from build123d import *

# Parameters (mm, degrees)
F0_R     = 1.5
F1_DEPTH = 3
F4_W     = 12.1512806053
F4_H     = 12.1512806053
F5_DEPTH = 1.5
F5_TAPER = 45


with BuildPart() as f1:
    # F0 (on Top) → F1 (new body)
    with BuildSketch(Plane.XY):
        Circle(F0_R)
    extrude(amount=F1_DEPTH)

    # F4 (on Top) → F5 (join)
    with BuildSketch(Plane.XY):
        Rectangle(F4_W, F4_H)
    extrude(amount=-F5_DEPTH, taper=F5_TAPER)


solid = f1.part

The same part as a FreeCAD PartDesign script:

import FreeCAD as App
import Part
import Sketcher
from FreeCAD import Vector

doc = App.newDocument("Part")
body = doc.addObject("PartDesign::Body", "Body")

sketch1 = body.newObject("Sketcher::SketchObject", "Sketch")
sketch1.AttachmentSupport = (doc.getObject("XY_Plane"), [""])
sketch1.MapMode = "FlatFace"
sketch1.addGeometry(Part.Circle(Vector(0, 0, 0), Vector(0, 0, 1), 1.5), False)
sketch1.addConstraint(Sketcher.Constraint("Coincident", 0, 3, -1, 1))
sketch1.addConstraint(Sketcher.Constraint("Diameter", 0, 3.0))
pad1 = body.newObject("PartDesign::Pad", "Pad")
pad1.Profile = sketch1
pad1.Length = 3

sketch2 = body.newObject("Sketcher::SketchObject", "Sketch001")
sketch2.AttachmentSupport = (doc.getObject("XY_Plane"), [""])
sketch2.MapMode = "FlatFace"
sketch2.addGeometry(Part.LineSegment(Vector(-6, 6, 0), Vector(-6, -6, 0)), False)
sketch2.addGeometry(Part.LineSegment(Vector(-6, -6, 0), Vector(6, -6, 0)), False)
sketch2.addGeometry(Part.LineSegment(Vector(6, -6, 0), Vector(6, 6, 0)), False)
sketch2.addGeometry(Part.LineSegment(Vector(6, 6, 0), Vector(-6, 6, 0)), False)
sketch2.addConstraint(Sketcher.Constraint("Coincident", 0, 2, 1, 1))
sketch2.addConstraint(Sketcher.Constraint("Coincident", 1, 2, 2, 1))
sketch2.addConstraint(Sketcher.Constraint("Coincident", 2, 2, 3, 1))
sketch2.addConstraint(Sketcher.Constraint("Coincident", 3, 2, 0, 1))
sketch2.addConstraint(Sketcher.Constraint("Vertical", 0))
sketch2.addConstraint(Sketcher.Constraint("Horizontal", 1))
sketch2.addConstraint(Sketcher.Constraint("Vertical", 2))
sketch2.addConstraint(Sketcher.Constraint("Horizontal", 3))
sketch2.addConstraint(Sketcher.Constraint("Symmetric", 0, 2, 2, 2, -1, 1))
sketch2.addConstraint(Sketcher.Constraint("Equal", 3, 0))
sketch2.addConstraint(Sketcher.Constraint("DistanceX", 1, 1, 1, 2, 12.151281))
pad2 = body.newObject("PartDesign::Pad", "Pad001")
pad2.Profile = sketch2
pad2.Length = 1.5
pad2.Reversed = True
pad2.TaperAngle = -45

doc.recompute()
